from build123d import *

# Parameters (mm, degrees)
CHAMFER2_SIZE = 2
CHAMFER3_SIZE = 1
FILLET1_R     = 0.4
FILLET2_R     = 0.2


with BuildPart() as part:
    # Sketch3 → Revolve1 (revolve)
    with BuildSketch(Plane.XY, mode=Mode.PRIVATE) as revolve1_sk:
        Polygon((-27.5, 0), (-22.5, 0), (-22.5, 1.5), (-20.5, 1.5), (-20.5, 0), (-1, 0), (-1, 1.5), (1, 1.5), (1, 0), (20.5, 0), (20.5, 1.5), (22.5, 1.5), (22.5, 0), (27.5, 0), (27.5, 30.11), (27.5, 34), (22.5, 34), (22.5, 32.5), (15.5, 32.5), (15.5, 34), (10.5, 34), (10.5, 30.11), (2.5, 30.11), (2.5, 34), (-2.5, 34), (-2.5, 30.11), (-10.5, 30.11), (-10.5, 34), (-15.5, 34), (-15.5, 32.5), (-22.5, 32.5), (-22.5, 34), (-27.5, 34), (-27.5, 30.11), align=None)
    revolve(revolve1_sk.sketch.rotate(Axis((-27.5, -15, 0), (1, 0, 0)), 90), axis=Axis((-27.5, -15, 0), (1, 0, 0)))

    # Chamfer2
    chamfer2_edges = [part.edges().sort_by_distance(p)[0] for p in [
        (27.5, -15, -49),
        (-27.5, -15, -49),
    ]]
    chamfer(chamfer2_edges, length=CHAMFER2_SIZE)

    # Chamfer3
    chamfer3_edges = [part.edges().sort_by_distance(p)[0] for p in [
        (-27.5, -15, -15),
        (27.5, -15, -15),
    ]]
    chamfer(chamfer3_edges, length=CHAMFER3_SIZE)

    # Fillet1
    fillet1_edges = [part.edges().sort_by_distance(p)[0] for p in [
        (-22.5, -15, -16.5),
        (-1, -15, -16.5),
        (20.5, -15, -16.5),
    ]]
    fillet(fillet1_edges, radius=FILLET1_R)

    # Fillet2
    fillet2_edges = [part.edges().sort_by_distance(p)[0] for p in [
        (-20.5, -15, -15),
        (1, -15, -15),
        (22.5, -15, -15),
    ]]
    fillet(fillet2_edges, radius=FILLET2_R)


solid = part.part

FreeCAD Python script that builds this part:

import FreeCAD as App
import Part
import Sketcher
from FreeCAD import Vector


def edges_at(feature, points):
    """Names of the edges that pass closest to the given points."""
    edges = feature.Shape.Edges
    near = lambda p: min(range(len(edges)), key=lambda i: edges[i].distToShape(Part.Vertex(*p))[0])
    return sorted({f"Edge{near(p) + 1}" for p in points})

doc = App.newDocument("Part")
body = doc.addObject("PartDesign::Body", "Body")

# Sketch on XY plane
sketch1 = doc.addObject("Sketcher::SketchObject", "Sketch")
body.addObject(sketch1)
sketch1.AttachmentSupport = (doc.XY_Plane, [""])
sketch1.MapMode = "FlatFace"
sketch1.addGeometry([
    Part.LineSegment(Vector(-27.5, 0, 0), Vector(-22.5, 0, 0)),  # 0
    Part.LineSegment(Vector(-22.5, 0, 0), Vector(-22.5, 1.5, 0)),  # 1
    Part.LineSegment(Vector(-22.5, 1.5, 0), Vector(-20.5, 1.5, 0)),  # 2
    Part.LineSegment(Vector(-20.5, 1.5, 0), Vector(-20.5, 0, 0)),  # 3
    Part.LineSegment(Vector(-20.5, 0, 0), Vector(-1, 0, 0)),  # 4
    Part.LineSegment(Vector(-1, 0, 0), Vector(-1, 1.5, 0)),  # 5
    Part.LineSegment(Vector(-1, 1.5, 0), Vector(1, 1.5, 0)),  # 6
    Part.LineSegment(Vector(1, 1.5, 0), Vector(1, 0, 0)),  # 7
    Part.LineSegment(Vector(1, 0, 0), Vector(20.5, 0, 0)),  # 8
    Part.LineSegment(Vector(20.5, 0, 0), Vector(20.5, 1.5, 0)),  # 9
    Part.LineSegment(Vector(20.5, 1.5, 0), Vector(22.5, 1.5, 0)),  # 10
    Part.LineSegment(Vector(22.5, 1.5, 0), Vector(22.5, 0, 0)),  # 11
    Part.LineSegment(Vector(22.5, 0, 0), Vector(27.5, 0, 0)),  # 12
    Part.LineSegment(Vector(27.5, 0, 0), Vector(27.5, 34, 0)),  # 13
    Part.LineSegment(Vector(27.5, 34, 0), Vector(22.5, 34, 0)),  # 14
    Part.LineSegment(Vector(22.5, 34, 0), Vector(22.5, 32.5, 0)),  # 15
    Part.LineSegment(Vector(22.5, 32.5, 0), Vector(15.5, 32.5, 0)),  # 16
    Part.LineSegment(Vector(15.5, 32.5, 0), Vector(15.5, 34, 0)),  # 17
    Part.LineSegment(Vector(15.5, 34, 0), Vector(10.5, 34, 0)),  # 18
    Part.LineSegment(Vector(10.5, 34, 0), Vector(10.5, 30.1, 0)),  # 19
    Part.LineSegment(Vector(10.5, 30.1, 0), Vector(2.5, 30.1, 0)),  # 20
    Part.LineSegment(Vector(2.5, 30.1, 0), Vector(2.5, 34, 0)),  # 21
    Part.LineSegment(Vector(2.5, 34, 0), Vector(-2.5, 34, 0)),  # 22
    Part.LineSegment(Vector(-2.5, 34, 0), Vector(-2.5, 30.1, 0)),  # 23
    Part.LineSegment(Vector(-2.5, 30.1, 0), Vector(-10.5, 30.1, 0)),  # 24
    Part.LineSegment(Vector(-10.5, 30.1, 0), Vector(-10.5, 34, 0)),  # 25
    Part.LineSegment(Vector(-10.5, 34, 0), Vector(-15.5, 34, 0)),  # 26
    Part.LineSegment(Vector(-15.5, 34, 0), Vector(-15.5, 32.5, 0)),  # 27
    Part.LineSegment(Vector(-15.5, 32.5, 0), Vector(-22.5, 32.5, 0)),  # 28
    Part.LineSegment(Vector(-22.5, 32.5, 0), Vector(-22.5, 34, 0)),  # 29
    Part.LineSegment(Vector(-22.5, 34, 0), Vector(-27.5, 34, 0)),  # 30
    Part.LineSegment(Vector(-27.5, 34, 0), Vector(-27.5, 0, 0)),  # 31
], False)
sketch1.addGeometry(Part.LineSegment(Vector(-27.5, -15, 0), Vector(27.5, -15, 0)), True)  # axis
sketch1.addConstraint([
    Sketcher.Constraint("Coincident", 0, 2, 1, 1),
    Sketcher.Constraint("Coincident", 1, 2, 2, 1),
    Sketcher.Constraint("Coincident", 2, 2, 3, 1),
    Sketcher.Constraint("Coincident", 3, 2, 4, 1),
    Sketcher.Constraint("Coincident", 4, 2, 5, 1),
    Sketcher.Constraint("Coincident", 5, 2, 6, 1),
    Sketcher.Constraint("Coincident", 6, 2, 7, 1),
    Sketcher.Constraint("Coincident", 7, 2, 8, 1),
    Sketcher.Constraint("Coincident", 8, 2, 9, 1),
    Sketcher.Constraint("Coincident", 9, 2, 10, 1),
    Sketcher.Constraint("Coincident", 10, 2, 11, 1),
    Sketcher.Constraint("Coincident", 11, 2, 12, 1),
    Sketcher.Constraint("Coincident", 12, 2, 13, 1),
    Sketcher.Constraint("Coincident", 13, 2, 14, 1),
    Sketcher.Constraint("Coincident", 14, 2, 15, 1),
    Sketcher.Constraint("Coincident", 15, 2, 16, 1),
    Sketcher.Constraint("Coincident", 16, 2, 17, 1),
    Sketcher.Constraint("Coincident", 17, 2, 18, 1),
    Sketcher.Constraint("Coincident", 18, 2, 19, 1),
    Sketcher.Constraint("Coincident", 19, 2, 20, 1),
    Sketcher.Constraint("Coincident", 20, 2, 21, 1),
    Sketcher.Constraint("Coincident", 21, 2, 22, 1),
    Sketcher.Constraint("Coincident", 22, 2, 23, 1),
    Sketcher.Constraint("Coincident", 23, 2, 24, 1),
    Sketcher.Constraint("Coincident", 24, 2, 25, 1),
    Sketcher.Constraint("Coincident", 25, 2, 26, 1),
    Sketcher.Constraint("Coincident", 26, 2, 27, 1),
    Sketcher.Constraint("Coincident", 27, 2, 28, 1),
    Sketcher.Constraint("Coincident", 28, 2, 29, 1),
    Sketcher.Constraint("Coincident", 29, 2, 30, 1),
    Sketcher.Constraint("Coincident", 30, 2, 31, 1),
    Sketcher.Constraint("Coincident", 31, 2, 0, 1),
    Sketcher.Constraint("Horizontal", 0),
    Sketcher.Constraint("Vertical", 1),
    Sketcher.Constraint("Horizontal", 2),
    Sketcher.Constraint("Vertical", 3),
    Sketcher.Constraint("Horizontal", 4),
    Sketcher.Constraint("Vertical", 5),
    Sketcher.Constraint("Horizontal", 6),
    Sketcher.Constraint("Vertical", 7),
    Sketcher.Constraint("Horizontal", 8),
    Sketcher.Constraint("Vertical", 9),
    Sketcher.Constraint("Horizontal", 10),
    Sketcher.Constraint("Vertical", 11),
    Sketcher.Constraint("Horizontal", 12),
    Sketcher.Constraint("Vertical", 13),
    Sketcher.Constraint("Horizontal", 14),
    Sketcher.Constraint("Vertical", 15),
    Sketcher.Constraint("Horizontal", 16),
    Sketcher.Constraint("Vertical", 17),
    Sketcher.Constraint("Horizontal", 18),
    Sketcher.Constraint("Vertical", 19),
    Sketcher.Constraint("Horizontal", 20),
    Sketcher.Constraint("Vertical", 21),
    Sketcher.Constraint("Horizontal", 22),
    Sketcher.Constraint("Vertical", 23),
    Sketcher.Constraint("Horizontal", 24),
    Sketcher.Constraint("Vertical", 25),
    Sketcher.Constraint("Horizontal", 26),
    Sketcher.Constraint("Vertical", 27),
    Sketcher.Constraint("Horizontal", 28),
    Sketcher.Constraint("Vertical", 29),
    Sketcher.Constraint("Horizontal", 30),
    Sketcher.Constraint("Vertical", 31),
    Sketcher.Constraint("Horizontal", 32),
    Sketcher.Constraint("Symmetric", 4, 2, 7, 2, -1, 1),
    Sketcher.Constraint("Symmetric", 0, 2, 11, 2, -1, 1),
    Sketcher.Constraint("Symmetric", 3, 2, 8, 2, -2),
    Sketcher.Constraint("Symmetric", 20, 2, 23, 2, -2),
    Sketcher.Constraint("Symmetric", 18, 2, 25, 2, -2),
    Sketcher.Constraint("Symmetric", 16, 2, 27, 2, -2),
    Sketcher.Constraint("Symmetric", 14, 2, 29, 2, -2),
    Sketcher.Constraint("Symmetric", 12, 2, 31, 2, -2),
    Sketcher.Constraint("Horizontal", 2, 2, 5, 2),
    Sketcher.Constraint("Horizontal", 6, 2, 9, 2),
    Sketcher.Constraint("Horizontal", 14, 2, 17, 2),
    Sketcher.Constraint("Horizontal", 18, 2, 21, 2),
    Sketcher.Constraint("Vertical", 11, 2, 14, 2),
    Sketcher.Constraint("Vertical", 31, 2, 32, 1),
    Sketcher.Constraint("Vertical", 13, 2, 32, 2),
    Sketcher.Constraint("Equal", 2, 6),
    Sketcher.Constraint("Equal", 14, 18),
    Sketcher.Constraint("Equal", 18, 22),
    Sketcher.Constraint("Equal", 11, 15),
    Sketcher.Constraint("DistanceX", 0, 1, 0, 2, 5.0),
    Sketcher.Constraint("DistanceX", 2, 1, 2, 2, 2.0),
    Sketcher.Constraint("DistanceX", 16, 2, 16, 1, 7.0),
    Sketcher.Constraint("DistanceX", 20, 2, 20, 1, 8.0),
    Sketcher.Constraint("DistanceY", 13, 1, 13, 2, 34.0),
    Sketcher.Constraint("DistanceY", 1, 1, 1, 2, 1.5),
    Sketcher.Constraint("DistanceY", 32, 1, -1, 1, 15.0),
    Sketcher.Constraint("DistanceY", 19, 2, 19, 1, 3.89),
])
revolution = doc.addObject("PartDesign::Revolution", "Revolution")
body.addObject(revolution)
revolution.Profile = sketch1
revolution.ReferenceAxis = (sketch1, ["Axis0"])
revolution.Angle = 360
doc.recompute()

chamfer = doc.addObject("PartDesign::Chamfer", "Chamfer")
body.addObject(chamfer)
chamfer.Base = (revolution, edges_at(revolution, [(27.5, -15, -49), (-27.5, -15, -49)]))
chamfer.Size = 2
doc.recompute()

chamfer2 = doc.addObject("PartDesign::Chamfer", "Chamfer001")
body.addObject(chamfer2)
chamfer2.Base = (chamfer, edges_at(chamfer, [(-27.5, -15, -15), (27.5, -15, -15)]))
chamfer2.Size = 1
doc.recompute()

fillet = doc.addObject("PartDesign::Fillet", "Fillet")
body.addObject(fillet)
fillet.Base = (chamfer2, edges_at(chamfer2, [(-22.5, -15, -16.5), (-1, -15, -16.5), (20.5, -15, -16.5)]))
fillet.Radius = 0.4
doc.recompute()

fillet2 = doc.addObject("PartDesign::Fillet", "Fillet001")
body.addObject(fillet2)
fillet2.Base = (fillet, edges_at(fillet, [(-20.5, -15, -15), (1, -15, -15), (22.5, -15, -15)]))
fillet2.Radius = 0.2

doc.recompute()
